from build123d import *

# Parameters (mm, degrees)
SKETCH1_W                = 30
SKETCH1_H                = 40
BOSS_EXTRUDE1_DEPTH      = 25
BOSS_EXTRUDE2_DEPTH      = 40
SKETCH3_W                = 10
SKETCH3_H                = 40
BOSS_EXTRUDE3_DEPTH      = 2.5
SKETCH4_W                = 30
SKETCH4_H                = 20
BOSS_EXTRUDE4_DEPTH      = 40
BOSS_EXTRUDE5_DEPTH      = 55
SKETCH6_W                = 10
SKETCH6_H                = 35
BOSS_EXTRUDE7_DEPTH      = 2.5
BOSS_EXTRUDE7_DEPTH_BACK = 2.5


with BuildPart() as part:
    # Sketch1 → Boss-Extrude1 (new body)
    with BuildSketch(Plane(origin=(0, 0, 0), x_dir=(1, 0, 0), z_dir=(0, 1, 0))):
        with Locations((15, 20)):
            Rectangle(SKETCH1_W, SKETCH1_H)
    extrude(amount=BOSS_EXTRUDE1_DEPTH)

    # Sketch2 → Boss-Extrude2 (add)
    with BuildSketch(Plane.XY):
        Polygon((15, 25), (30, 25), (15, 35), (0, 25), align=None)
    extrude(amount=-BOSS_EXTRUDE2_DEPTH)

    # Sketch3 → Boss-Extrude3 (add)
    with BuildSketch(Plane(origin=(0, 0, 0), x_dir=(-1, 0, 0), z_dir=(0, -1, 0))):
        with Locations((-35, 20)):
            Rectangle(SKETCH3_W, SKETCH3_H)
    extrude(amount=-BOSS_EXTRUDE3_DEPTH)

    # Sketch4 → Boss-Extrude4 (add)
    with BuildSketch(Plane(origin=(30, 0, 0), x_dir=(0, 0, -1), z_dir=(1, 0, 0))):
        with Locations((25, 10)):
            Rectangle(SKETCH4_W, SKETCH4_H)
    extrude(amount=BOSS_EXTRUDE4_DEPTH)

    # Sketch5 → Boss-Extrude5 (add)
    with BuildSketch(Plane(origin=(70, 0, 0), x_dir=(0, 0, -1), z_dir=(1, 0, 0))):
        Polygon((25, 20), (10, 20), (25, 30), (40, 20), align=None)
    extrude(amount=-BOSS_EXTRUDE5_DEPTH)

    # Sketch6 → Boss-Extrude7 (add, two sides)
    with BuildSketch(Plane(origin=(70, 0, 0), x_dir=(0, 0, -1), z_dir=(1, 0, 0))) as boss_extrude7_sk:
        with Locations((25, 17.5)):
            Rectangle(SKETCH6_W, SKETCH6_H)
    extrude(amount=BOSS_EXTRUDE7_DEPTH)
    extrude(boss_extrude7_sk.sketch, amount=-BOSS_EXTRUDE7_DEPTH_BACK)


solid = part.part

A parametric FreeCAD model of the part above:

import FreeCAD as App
import Part
import Sketcher
Q = App.Units.Quantity

doc = App.newDocument("Part")
body = doc.addObject("PartDesign::Body", "Body")

# Sketch on XZ plane
sketch1 = doc.addObject("Sketcher::SketchObject", "Sketch")
body.addObject(sketch1)
sketch1.AttachmentSupport = (doc.XZ_Plane, [""])
sketch1.MapMode = "FlatFace"
sketch1.addGeometry(Part.LineSegment(App.Vector(0, -40, 0), App.Vector(0, 0, 0)), False)
sketch1.addGeometry(Part.LineSegment(App.Vector(0, 0, 0), App.Vector(30, 0, 0)), False)
sketch1.addGeometry(Part.LineSegment(App.Vector(30, 0, 0), App.Vector(30, -40, 0)), False)
sketch1.addGeometry(Part.LineSegment(App.Vector(30, -40, 0), App.Vector(0, -40, 0)), False)
sketch1.addConstraint(Sketcher.Constraint("Coincident", 0, 2, 1, 1))
sketch1.addConstraint(Sketcher.Constraint("Coincident", 1, 2, 2, 1))
sketch1.addConstraint(Sketcher.Constraint("Coincident", 2, 2, 3, 1))
sketch1.addConstraint(Sketcher.Constraint("Coincident", 3, 2, 0, 1))
sketch1.addConstraint(Sketcher.Constraint("Vertical", 0))
sketch1.addConstraint(Sketcher.Constraint("Horizontal", 1))
sketch1.addConstraint(Sketcher.Constraint("Vertical", 2))
sketch1.addConstraint(Sketcher.Constraint("Horizontal", 3))
sketch1.addConstraint(Sketcher.Constraint("Coincident", 0, 2, -1, 1))
sketch1.addConstraint(Sketcher.Constraint("DistanceX", 1, 1, 1, 2, Q("30 mm")))
sketch1.addConstraint(Sketcher.Constraint("DistanceY", 0, 1, 0, 2, Q("40 mm")))
pad1 = doc.addObject("PartDesign::Pad", "Pad")
body.addObject(pad1)
pad1.Profile = sketch1
pad1.Length = 25
pad1.Reversed = True

# Sketch on XY plane
sketch2 = doc.addObject("Sketcher::SketchObject", "Sketch001")
body.addObject(sketch2)
sketch2.AttachmentSupport = (doc.XY_Plane, [""])
sketch2.MapMode = "FlatFace"
sketch2.addGeometry(Part.LineSegment(App.Vector(30, 25, 0), App.Vector(15, 35, 0)), False)
sketch2.addGeometry(Part.LineSegment(App.Vector(15, 35, 0), App.Vector(0, 25, 0)), False)
sketch2.addGeometry(Part.LineSegment(App.Vector(0, 25, 0), App.Vector(30, 25, 0)), False)
sketch2.addConstraint(Sketcher.Constraint("Coincident", 0, 2, 1, 1))
sketch2.addConstraint(Sketcher.Constraint("Coincident", 1, 2, 2, 1))
sketch2.addConstraint(Sketcher.Constraint("Coincident", 2, 2, 0, 1))
sketch2.addConstraint(Sketcher.Constraint("Horizontal", 2))
sketch2.addConstraint(Sketcher.Constraint("PointOnObject", 1, 2, -2))
sketch2.addConstraint(Sketcher.Constraint("Equal", 0, 1))
sketch2.addConstraint(Sketcher.Constraint("DistanceX", 2, 1, 2, 2, Q("30 mm")))
sketch2.addConstraint(Sketcher.Constraint("DistanceY", -1, 1, 0, 2, Q("35 mm")))
sketch2.addConstraint(Sketcher.Constraint("DistanceY", -1, 1, 1, 2, Q("25 mm")))
pad2 = doc.addObject("PartDesign::Pad", "Pad001")
body.addObject(pad2)
pad2.Profile = sketch2
pad2.Length = 40
pad2.Reversed = True

# Sketch on XZ plane
sketch3 = doc.addObject("Sketcher::SketchObject", "Sketch002")
body.addObject(sketch3)
sketch3.AttachmentSupport = (doc.XZ_Plane, [""])
sketch3.MapMode = "FlatFace"
sketch3.addGeometry(Part.LineSegment(App.Vector(40, -40, 0), App.Vector(40, 0, 0)), False)
sketch3.addGeometry(Part.LineSegment(App.Vector(40, 0, 0), App.Vector(30, 0, 0)), False)
sketch3.addGeometry(Part.LineSegment(App.Vector(30, 0, 0), App.Vector(30, -40, 0)), False)
sketch3.addGeometry(Part.LineSegment(App.Vector(30, -40, 0), App.Vector(40, -40, 0)), False)
sketch3.addConstraint(Sketcher.Constraint("Coincident", 0, 2, 1, 1))
sketch3.addConstraint(Sketcher.Constraint("Coincident", 1, 2, 2, 1))
sketch3.addConstraint(Sketcher.Constraint("Coincident", 2, 2, 3, 1))
sketch3.addConstraint(Sketcher.Constraint("Coincident", 3, 2, 0, 1))
sketch3.addConstraint(Sketcher.Constraint("Vertical", 0))
sketch3.addConstraint(Sketcher.Constraint("Horizontal", 1))
sketch3.addConstraint(Sketcher.Constraint("Vertical", 2))
sketch3.addConstraint(Sketcher.Constraint("Horizontal", 3))
sketch3.addConstraint(Sketcher.Constraint("PointOnObject", 0, 2, -1))
sketch3.addConstraint(Sketcher.Constraint("DistanceX", 1, 2, 1, 1, Q("10 mm")))
sketch3.addConstraint(Sketcher.Constraint("DistanceY", 0, 1, 0, 2, Q("40 mm")))
sketch3.addConstraint(Sketcher.Constraint("DistanceX", -1, 1, 0, 2, Q("40 mm")))
pad3 = doc.addObject("PartDesign::Pad", "Pad002")
body.addObject(pad3)
pad3.Profile = sketch3
pad3.Length = 2.5
pad3.Reversed = True

# Sketch on YZ plane
sketch4 = doc.addObject("Sketcher::SketchObject", "Sketch003")
body.addObject(sketch4)
sketch4.AttachmentSupport = (doc.YZ_Plane, [""])
sketch4.MapMode = "FlatFace"
sketch4.AttachmentOffset = App.Placement(App.Vector(0, 0, 30), App.Rotation())
sketch4.addGeometry(Part.LineSegment(App.Vector(20, -10, 0), App.Vector(0, -10, 0)), False)
sketch4.addGeometry(Part.LineSegment(App.Vector(0, -10, 0), App.Vector(0, -40, 0)), False)
sketch4.addGeometry(Part.LineSegment(App.Vector(0, -40, 0), App.Vector(20, -40, 0)), False)
sketch4.addGeometry(Part.LineSegment(App.Vector(20, -40, 0), App.Vector(20, -10, 0)), False)
sketch4.addConstraint(Sketcher.Constraint("Coincident", 0, 2, 1, 1))
sketch4.addConstraint(Sketcher.Constraint("Coincident", 1, 2, 2, 1))
sketch4.addConstraint(Sketcher.Constraint("Coincident", 2, 2, 3, 1))
sketch4.addConstraint(Sketcher.Constraint("Coincident", 3, 2, 0, 1))
sketch4.addConstraint(Sketcher.Constraint("Horizontal", 0))
sketch4.addConstraint(Sketcher.Constraint("Vertical", 1))
sketch4.addConstraint(Sketcher.Constraint("Horizontal", 2))
sketch4.addConstraint(Sketcher.Constraint("Vertical", 3))
sketch4.addConstraint(Sketcher.Constraint("PointOnObject", 0, 2, -2))
sketch4.addConstraint(Sketcher.Constraint("DistanceX", 0, 2, 0, 1, Q("20 mm")))
sketch4.addConstraint(Sketcher.Constraint("DistanceY", 1, 2, 1, 1, Q("30 mm")))
sketch4.addConstraint(Sketcher.Constraint("DistanceY", 0, 2, -1, 1, Q("10 mm")))
pad4 = doc.addObject("PartDesign::Pad", "Pad003")
body.addObject(pad4)
pad4.Profile = sketch4
pad4.Length = 40

# Sketch on YZ plane
sketch5 = doc.addObject("Sketcher::SketchObject", "Sketch004")
body.addObject(sketch5)
sketch5.AttachmentSupport = (doc.YZ_Plane, [""])
sketch5.MapMode = "FlatFace"
sketch5.AttachmentOffset = App.Placement(App.Vector(0, 0, 70), App.Rotation())
sketch5.addGeometry(Part.LineSegment(App.Vector(20, -10, 0), App.Vector(20, -40, 0)), False)
sketch5.addGeometry(Part.LineSegment(App.Vector(20, -40, 0), App.Vector(30, -25, 0)), False)
sketch5.addGeometry(Part.LineSegment(App.Vector(30, -25, 0), App.Vector(20, -10, 0)), False)
sketch5.addConstraint(Sketcher.Constraint("Coincident", 0, 2, 1, 1))
sketch5.addConstraint(Sketcher.Constraint("Coincident", 1, 2, 2, 1))
sketch5.addConstraint(Sketcher.Constraint("Coincident", 2, 2, 0, 1))
sketch5.addConstraint(Sketcher.Constraint("Vertical", 0))
sketch5.addConstraint(Sketcher.Constraint("Equal", 1, 2))
sketch5.addConstraint(Sketcher.Constraint("DistanceY", 0, 2, 0, 1, Q("30 mm")))
sketch5.addConstraint(Sketcher.Constraint("DistanceX", -1, 1, 0, 2, Q("20 mm")))
sketch5.addConstraint(Sketcher.Constraint("DistanceY", 0, 2, -1, 1, Q("40 mm")))
sketch5.addConstraint(Sketcher.Constraint("DistanceX", -1, 1, 1, 2, Q("30 mm")))
pad5 = doc.addObject("PartDesign::Pad", "Pad004")
body.addObject(pad5)
pad5.Profile = sketch5
pad5.Length = 55
pad5.Reversed = True

# Sketch on YZ plane
sketch6 = doc.addObject("Sketcher::SketchObject", "Sketch005")
body.addObject(sketch6)
sketch6.AttachmentSupport = (doc.YZ_Plane, [""])
sketch6.MapMode = "FlatFace"
sketch6.AttachmentOffset = App.Placement(App.Vector(0, 0, 70), App.Rotation())
sketch6.addGeometry(Part.LineSegment(App.Vector(35, -20, 0), App.Vector(0, -20, 0)), False)
sketch6.addGeometry(Part.LineSegment(App.Vector(0, -20, 0), App.Vector(0, -30, 0)), False)
sketch6.addGeometry(Part.LineSegment(App.Vector(0, -30, 0), App.Vector(35, -30, 0)), False)
sketch6.addGeometry(Part.LineSegment(App.Vector(35, -30, 0), App.Vector(35, -20, 0)), False)
sketch6.addConstraint(Sketcher.Constraint("Coincident", 0, 2, 1, 1))
sketch6.addConstraint(Sketcher.Constraint("Coincident", 1, 2, 2, 1))
sketch6.addConstraint(Sketcher.Constraint("Coincident", 2, 2, 3, 1))
sketch6.addConstraint(Sketcher.Constraint("Coincident", 3, 2, 0, 1))
sketch6.addConstraint(Sketcher.Constraint("Horizontal", 0))
sketch6.addConstraint(Sketcher.Constraint("Vertical", 1))
sketch6.addConstraint(Sketcher.Constraint("Horizontal", 2))
sketch6.addConstraint(Sketcher.Constraint("Vertical", 3))
sketch6.addConstraint(Sketcher.Constraint("PointOnObject", 0, 2, -2))
sketch6.addConstraint(Sketcher.Constraint("DistanceX", 0, 2, 0, 1, Q("35 mm")))
sketch6.addConstraint(Sketcher.Constraint("DistanceY", 1, 2, 1, 1, Q("10 mm")))
sketch6.addConstraint(Sketcher.Constraint("DistanceY", 0, 2, -1, 1, Q("20 mm")))
pad6 = doc.addObject("PartDesign::Pad", "Pad005")
body.addObject(pad6)
pad6.Profile = sketch6
pad6.Type = "TwoLengths"
pad6.Length = 2.5
pad6.Length2 = 2.5

doc.recompute()
